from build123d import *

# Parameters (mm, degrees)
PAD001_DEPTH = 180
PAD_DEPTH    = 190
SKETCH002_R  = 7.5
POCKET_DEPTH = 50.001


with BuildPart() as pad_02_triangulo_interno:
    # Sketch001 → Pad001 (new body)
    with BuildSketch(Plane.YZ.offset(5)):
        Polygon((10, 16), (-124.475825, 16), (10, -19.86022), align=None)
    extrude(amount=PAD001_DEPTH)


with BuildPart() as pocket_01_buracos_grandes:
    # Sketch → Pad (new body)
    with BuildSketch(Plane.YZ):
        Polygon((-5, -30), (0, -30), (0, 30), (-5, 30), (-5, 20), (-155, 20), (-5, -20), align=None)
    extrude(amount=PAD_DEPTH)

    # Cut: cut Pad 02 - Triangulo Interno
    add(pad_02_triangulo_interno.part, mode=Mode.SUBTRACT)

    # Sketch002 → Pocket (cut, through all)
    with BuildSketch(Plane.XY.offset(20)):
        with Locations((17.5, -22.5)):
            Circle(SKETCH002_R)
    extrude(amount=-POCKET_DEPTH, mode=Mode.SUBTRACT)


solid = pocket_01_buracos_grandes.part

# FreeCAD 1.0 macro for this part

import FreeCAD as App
import Part
import Sketcher

V = App.Vector

doc = App.newDocument("Part")
body = doc.addObject("PartDesign::Body", "Body")

# Sketch on YZ plane
sketch1 = body.newObject("Sketcher::SketchObject", "Sketch")
sketch1.AttachmentSupport = (doc.getObject("YZ_Plane"), [""])
sketch1.MapMode = "FlatFace"
sketch1.AttachmentOffset = App.Placement(V(0, 0, 5), App.Rotation())
sketch1.addGeometry(Part.LineSegment(V(10, 16, 0), V(-124, 16, 0)), False)
sketch1.addGeometry(Part.LineSegment(V(-124, 16, 0), V(10, -20, 0)), False)
sketch1.addGeometry(Part.LineSegment(V(10, -20, 0), V(10, 16, 0)), False)
sketch1.addConstraint(Sketcher.Constraint("Coincident", 0, 2, 1, 1))
sketch1.addConstraint(Sketcher.Constraint("Coincident", 1, 2, 2, 1))
sketch1.addConstraint(Sketcher.Constraint("Coincident", 2, 2, 0, 1))
sketch1.addConstraint(Sketcher.Constraint("Horizontal", 0))
sketch1.addConstraint(Sketcher.Constraint("Vertical", 2))
sketch1.addConstraint(Sketcher.Constraint("DistanceY", -1, 1, 0, 2, 16.0))
sketch1.addConstraint(Sketcher.Constraint("DistanceX", -1, 1, 1, 2, 10.0))
sketch1.addConstraint(Sketcher.Constraint("DistanceY", 2, 1, 2, 2, 35.86022))
sketch1.addConstraint(Sketcher.Constraint("Distance", 1, 139.17508))
pad1 = body.newObject("PartDesign::Pad", "Pad")
pad1.Profile = sketch1
pad1.Length = 180
body2 = doc.addObject("PartDesign::Body", "Body001")

# Sketch on YZ plane
sketch2 = body2.newObject("Sketcher::SketchObject", "Sketch001")
sketch2.AttachmentSupport = (doc.getObject("YZ_Plane001"), [""])
sketch2.MapMode = "FlatFace"
sketch2.addGeometry(Part.LineSegment(V(-5, -30, 0), V(0, -30, 0)), False)
sketch2.addGeometry(Part.LineSegment(V(0, -30, 0), V(0, 30, 0)), False)
sketch2.addGeometry(Part.LineSegment(V(0, 30, 0), V(-5, 30, 0)), False)
sketch2.addGeometry(Part.LineSegment(V(-5, 30, 0), V(-5, 20, 0)), False)
sketch2.addGeometry(Part.LineSegment(V(-5, 20, 0), V(-155, 20, 0)), False)
sketch2.addGeometry(Part.LineSegment(V(-155, 20, 0), V(-5, -20, 0)), False)
sketch2.addGeometry(Part.LineSegment(V(-5, -20, 0), V(-5, -30, 0)), False)
sketch2.addConstraint(Sketcher.Constraint("Coincident", 0, 2, 1, 1))
sketch2.addConstraint(Sketcher.Constraint("Coincident", 1, 2, 2, 1))
sketch2.addConstraint(Sketcher.Constraint("Coincident", 2, 2, 3, 1))
sketch2.addConstraint(Sketcher.Constraint("Coincident", 3, 2, 4, 1))
sketch2.addConstraint(Sketcher.Constraint("Coincident", 4, 2, 5, 1))
sketch2.addConstraint(Sketcher.Constraint("Coincident", 5, 2, 6, 1))
sketch2.addConstraint(Sketcher.Constraint("Coincident", 6, 2, 0, 1))
sketch2.addConstraint(Sketcher.Constraint("Horizontal", 0))
sketch2.addConstraint(Sketcher.Constraint("Vertical", 1))
sketch2.addConstraint(Sketcher.Constraint("Horizontal", 2))
sketch2.addConstraint(Sketcher.Constraint("Vertical", 3))
sketch2.addConstraint(Sketcher.Constraint("Horizontal", 4))
sketch2.addConstraint(Sketcher.Constraint("Vertical", 6))
sketch2.addConstraint(Sketcher.Constraint("Symmetric", 0, 2, 1, 2, -1, 1))
sketch2.addConstraint(Sketcher.Constraint("Symmetric", 3, 2, 5, 2, -1))
sketch2.addConstraint(Sketcher.Constraint("DistanceX", 0, 1, 0, 2, 5.0))
sketch2.addConstraint(Sketcher.Constraint("DistanceX", 4, 2, 4, 1, 150.0))
sketch2.addConstraint(Sketcher.Constraint("DistanceY", 1, 1, 1, 2, 60.0))
sketch2.addConstraint(Sketcher.Constraint("DistanceY", 3, 2, 3, 1, 10.0))
pad2 = body2.newObject("PartDesign::Pad", "Pad001")
pad2.Profile = sketch2
pad2.Length = 190
doc.recompute()

boolean = body2.newObject("PartDesign::Boolean", "Boolean")
boolean.Type = "Cut"
boolean.addObjects([body])

# Sketch on XY plane
sketch3 = body2.newObject("Sketcher::SketchObject", "Sketch002")
sketch3.AttachmentSupport = (doc.getObject("XY_Plane001"), [""])
sketch3.MapMode = "FlatFace"
sketch3.AttachmentOffset = App.Placement(V(0, 0, 20), App.Rotation())
sketch3.addGeometry(Part.Circle(V(18, -22, 0), V(0, 0, 1), 8), False)
sketch3.addConstraint(Sketcher.Constraint("Diameter", 0, 15.0))
sketch3.addConstraint(Sketcher.Constraint("DistanceX", -1, 1, 0, 3, 17.5))
sketch3.addConstraint(Sketcher.Constraint("DistanceY", 0, 3, -1, 1, 22.5))
pocket1 = body2.newObject("PartDesign::Pocket", "Pocket")
pocket1.Profile = sketch3
pocket1.Type = "ThroughAll"

doc.recompute()
